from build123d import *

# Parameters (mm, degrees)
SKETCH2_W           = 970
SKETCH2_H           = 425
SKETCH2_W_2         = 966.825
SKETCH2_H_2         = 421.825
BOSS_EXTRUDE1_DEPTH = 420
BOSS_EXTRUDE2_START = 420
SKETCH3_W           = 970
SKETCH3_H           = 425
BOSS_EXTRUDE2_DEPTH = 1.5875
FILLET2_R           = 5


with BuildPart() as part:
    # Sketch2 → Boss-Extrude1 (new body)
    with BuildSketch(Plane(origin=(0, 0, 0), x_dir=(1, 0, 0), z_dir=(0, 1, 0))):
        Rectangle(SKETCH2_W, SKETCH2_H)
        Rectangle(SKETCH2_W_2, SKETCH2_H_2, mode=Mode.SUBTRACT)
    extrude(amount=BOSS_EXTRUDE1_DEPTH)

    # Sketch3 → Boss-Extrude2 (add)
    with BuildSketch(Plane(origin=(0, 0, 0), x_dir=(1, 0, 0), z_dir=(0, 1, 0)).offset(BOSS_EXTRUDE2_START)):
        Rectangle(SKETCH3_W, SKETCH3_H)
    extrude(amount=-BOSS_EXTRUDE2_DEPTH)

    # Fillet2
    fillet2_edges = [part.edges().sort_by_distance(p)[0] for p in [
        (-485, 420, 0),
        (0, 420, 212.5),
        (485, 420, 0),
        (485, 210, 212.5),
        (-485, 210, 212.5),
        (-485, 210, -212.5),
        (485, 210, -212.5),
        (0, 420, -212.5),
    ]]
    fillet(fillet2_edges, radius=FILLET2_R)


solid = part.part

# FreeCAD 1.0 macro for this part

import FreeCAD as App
import Part
import Sketcher

V = App.Vector
Q = App.Units.Quantity


def edges_at(feature, points):
    """Names of the edges that pass closest to the given points."""
    edges = feature.Shape.Edges
    near = lambda p: min(range(len(edges)), key=lambda i: edges[i].distToShape(Part.Vertex(*p))[0])
    return sorted({f"Edge{near(p) + 1}" for p in points})

doc = App.newDocument("Part")
body = doc.addObject("PartDesign::Body", "Body")

sketch1 = body.newObject("Sketcher::SketchObject", "Sketch")
sketch1.AttachmentSupport = (doc.getObject("XZ_Plane"), [""])
sketch1.MapMode = "FlatFace"
sketch1.addGeometry(Part.LineSegment(V(-485, -212, 0), V(-485, 212, 0)), False)
sketch1.addGeometry(Part.LineSegment(V(-485, 212, 0), V(485, 212, 0)), False)
sketch1.addGeometry(Part.LineSegment(V(485, 212, 0), V(485, -212, 0)), False)
sketch1.addGeometry(Part.LineSegment(V(485, -212, 0), V(-485, -212, 0)), False)
sketch1.addGeometry(Part.LineSegment(V(483, 211, 0), V(-483, 211, 0)), False)
sketch1.addGeometry(Part.LineSegment(V(-483, 211, 0), V(-483, -211, 0)), False)
sketch1.addGeometry(Part.LineSegment(V(-483, -211, 0), V(483, -211, 0)), False)
sketch1.addGeometry(Part.LineSegment(V(483, -211, 0), V(483, 211, 0)), False)
sketch1.addConstraint(Sketcher.Constraint("Coincident", 0, 2, 1, 1))
sketch1.addConstraint(Sketcher.Constraint("Coincident", 1, 2, 2, 1))
sketch1.addConstraint(Sketcher.Constraint("Coincident", 2, 2, 3, 1))
sketch1.addConstraint(Sketcher.Constraint("Coincident", 3, 2, 0, 1))
sketch1.addConstraint(Sketcher.Constraint("Coincident", 4, 2, 5, 1))
sketch1.addConstraint(Sketcher.Constraint("Coincident", 5, 2, 6, 1))
sketch1.addConstraint(Sketcher.Constraint("Coincident", 6, 2, 7, 1))
sketch1.addConstraint(Sketcher.Constraint("Coincident", 7, 2, 4, 1))
sketch1.addConstraint(Sketcher.Constraint("Vertical", 0))
sketch1.addConstraint(Sketcher.Constraint("Horizontal", 1))
sketch1.addConstraint(Sketcher.Constraint("Vertical", 2))
sketch1.addConstraint(Sketcher.Constraint("Horizontal", 3))
sketch1.addConstraint(Sketcher.Constraint("Horizontal", 4))
sketch1.addConstraint(Sketcher.Constraint("Vertical", 5))
sketch1.addConstraint(Sketcher.Constraint("Horizontal", 6))
sketch1.addConstraint(Sketcher.Constraint("Vertical", 7))
sketch1.addConstraint(Sketcher.Constraint("Symmetric", 0, 2, 2, 2, -1, 1))
sketch1.addConstraint(Sketcher.Constraint("Symmetric", 4, 2, 6, 2, -1, 1))
sketch1.addConstraint(Sketcher.Constraint("DistanceX", 1, 1, 1, 2, Q("970 mm")))
sketch1.addConstraint(Sketcher.Constraint("DistanceY", 0, 1, 0, 2, Q("425 mm")))
sketch1.addConstraint(Sketcher.Constraint("DistanceX", 4, 2, 4, 1, Q("966.825 mm")))
sketch1.addConstraint(Sketcher.Constraint("DistanceY", 5, 2, 5, 1, Q("421.825 mm")))
pad1 = body.newObject("PartDesign::Pad", "Pad")
pad1.Profile = sketch1
pad1.Length = 420
pad1.Reversed = True

sketch2 = body.newObject("Sketcher::SketchObject", "Sketch001")
sketch2.AttachmentSupport = (doc.getObject("XZ_Plane"), [""])
sketch2.MapMode = "FlatFace"
sketch2.AttachmentOffset = App.Placement(V(0, 0, -420), App.Rotation())
sketch2.addGeometry(Part.LineSegment(V(-485, -212, 0), V(-485, 212, 0)), False)
sketch2.addGeometry(Part.LineSegment(V(-485, 212, 0), V(485, 212, 0)), False)
sketch2.addGeometry(Part.LineSegment(V(485, 212, 0), V(485, -212, 0)), False)
sketch2.addGeometry(Part.LineSegment(V(485, -212, 0), V(-485, -212, 0)), False)
sketch2.addConstraint(Sketcher.Constraint("Coincident", 0, 2, 1, 1))
sketch2.addConstraint(Sketcher.Constraint("Coincident", 1, 2, 2, 1))
sketch2.addConstraint(Sketcher.Constraint("Coincident", 2, 2, 3, 1))
sketch2.addConstraint(Sketcher.Constraint("Coincident", 3, 2, 0, 1))
sketch2.addConstraint(Sketcher.Constraint("Vertical", 0))
sketch2.addConstraint(Sketcher.Constraint("Horizontal", 1))
sketch2.addConstraint(Sketcher.Constraint("Vertical", 2))
sketch2.addConstraint(Sketcher.Constraint("Horizontal", 3))
sketch2.addConstraint(Sketcher.Constraint("Symmetric", 0, 2, 2, 2, -1, 1))
sketch2.addConstraint(Sketcher.Constraint("DistanceX", 1, 1, 1, 2, Q("970 mm")))
sketch2.addConstraint(Sketcher.Constraint("DistanceY", 0, 1, 0, 2, Q("425 mm")))
pad2 = body.newObject("PartDesign::Pad", "Pad001")
pad2.Profile = sketch2
pad2.Length = 1.5875
doc.recompute()

fillet = body.newObject("PartDesign::Fillet", "Fillet")
fillet.Base = (pad2, edges_at(pad2, [
    (-485, 420, 0),
    (0, 420, 212.5),
    (485, 420, 0),
    (485, 210, 212.5),
    (-485, 210, 212.5),
    (-485, 210, -212.5),
    (485, 210, -212.5),
    (0, 420, -212.5),
]))
fillet.Radius = 5

doc.recompute()
